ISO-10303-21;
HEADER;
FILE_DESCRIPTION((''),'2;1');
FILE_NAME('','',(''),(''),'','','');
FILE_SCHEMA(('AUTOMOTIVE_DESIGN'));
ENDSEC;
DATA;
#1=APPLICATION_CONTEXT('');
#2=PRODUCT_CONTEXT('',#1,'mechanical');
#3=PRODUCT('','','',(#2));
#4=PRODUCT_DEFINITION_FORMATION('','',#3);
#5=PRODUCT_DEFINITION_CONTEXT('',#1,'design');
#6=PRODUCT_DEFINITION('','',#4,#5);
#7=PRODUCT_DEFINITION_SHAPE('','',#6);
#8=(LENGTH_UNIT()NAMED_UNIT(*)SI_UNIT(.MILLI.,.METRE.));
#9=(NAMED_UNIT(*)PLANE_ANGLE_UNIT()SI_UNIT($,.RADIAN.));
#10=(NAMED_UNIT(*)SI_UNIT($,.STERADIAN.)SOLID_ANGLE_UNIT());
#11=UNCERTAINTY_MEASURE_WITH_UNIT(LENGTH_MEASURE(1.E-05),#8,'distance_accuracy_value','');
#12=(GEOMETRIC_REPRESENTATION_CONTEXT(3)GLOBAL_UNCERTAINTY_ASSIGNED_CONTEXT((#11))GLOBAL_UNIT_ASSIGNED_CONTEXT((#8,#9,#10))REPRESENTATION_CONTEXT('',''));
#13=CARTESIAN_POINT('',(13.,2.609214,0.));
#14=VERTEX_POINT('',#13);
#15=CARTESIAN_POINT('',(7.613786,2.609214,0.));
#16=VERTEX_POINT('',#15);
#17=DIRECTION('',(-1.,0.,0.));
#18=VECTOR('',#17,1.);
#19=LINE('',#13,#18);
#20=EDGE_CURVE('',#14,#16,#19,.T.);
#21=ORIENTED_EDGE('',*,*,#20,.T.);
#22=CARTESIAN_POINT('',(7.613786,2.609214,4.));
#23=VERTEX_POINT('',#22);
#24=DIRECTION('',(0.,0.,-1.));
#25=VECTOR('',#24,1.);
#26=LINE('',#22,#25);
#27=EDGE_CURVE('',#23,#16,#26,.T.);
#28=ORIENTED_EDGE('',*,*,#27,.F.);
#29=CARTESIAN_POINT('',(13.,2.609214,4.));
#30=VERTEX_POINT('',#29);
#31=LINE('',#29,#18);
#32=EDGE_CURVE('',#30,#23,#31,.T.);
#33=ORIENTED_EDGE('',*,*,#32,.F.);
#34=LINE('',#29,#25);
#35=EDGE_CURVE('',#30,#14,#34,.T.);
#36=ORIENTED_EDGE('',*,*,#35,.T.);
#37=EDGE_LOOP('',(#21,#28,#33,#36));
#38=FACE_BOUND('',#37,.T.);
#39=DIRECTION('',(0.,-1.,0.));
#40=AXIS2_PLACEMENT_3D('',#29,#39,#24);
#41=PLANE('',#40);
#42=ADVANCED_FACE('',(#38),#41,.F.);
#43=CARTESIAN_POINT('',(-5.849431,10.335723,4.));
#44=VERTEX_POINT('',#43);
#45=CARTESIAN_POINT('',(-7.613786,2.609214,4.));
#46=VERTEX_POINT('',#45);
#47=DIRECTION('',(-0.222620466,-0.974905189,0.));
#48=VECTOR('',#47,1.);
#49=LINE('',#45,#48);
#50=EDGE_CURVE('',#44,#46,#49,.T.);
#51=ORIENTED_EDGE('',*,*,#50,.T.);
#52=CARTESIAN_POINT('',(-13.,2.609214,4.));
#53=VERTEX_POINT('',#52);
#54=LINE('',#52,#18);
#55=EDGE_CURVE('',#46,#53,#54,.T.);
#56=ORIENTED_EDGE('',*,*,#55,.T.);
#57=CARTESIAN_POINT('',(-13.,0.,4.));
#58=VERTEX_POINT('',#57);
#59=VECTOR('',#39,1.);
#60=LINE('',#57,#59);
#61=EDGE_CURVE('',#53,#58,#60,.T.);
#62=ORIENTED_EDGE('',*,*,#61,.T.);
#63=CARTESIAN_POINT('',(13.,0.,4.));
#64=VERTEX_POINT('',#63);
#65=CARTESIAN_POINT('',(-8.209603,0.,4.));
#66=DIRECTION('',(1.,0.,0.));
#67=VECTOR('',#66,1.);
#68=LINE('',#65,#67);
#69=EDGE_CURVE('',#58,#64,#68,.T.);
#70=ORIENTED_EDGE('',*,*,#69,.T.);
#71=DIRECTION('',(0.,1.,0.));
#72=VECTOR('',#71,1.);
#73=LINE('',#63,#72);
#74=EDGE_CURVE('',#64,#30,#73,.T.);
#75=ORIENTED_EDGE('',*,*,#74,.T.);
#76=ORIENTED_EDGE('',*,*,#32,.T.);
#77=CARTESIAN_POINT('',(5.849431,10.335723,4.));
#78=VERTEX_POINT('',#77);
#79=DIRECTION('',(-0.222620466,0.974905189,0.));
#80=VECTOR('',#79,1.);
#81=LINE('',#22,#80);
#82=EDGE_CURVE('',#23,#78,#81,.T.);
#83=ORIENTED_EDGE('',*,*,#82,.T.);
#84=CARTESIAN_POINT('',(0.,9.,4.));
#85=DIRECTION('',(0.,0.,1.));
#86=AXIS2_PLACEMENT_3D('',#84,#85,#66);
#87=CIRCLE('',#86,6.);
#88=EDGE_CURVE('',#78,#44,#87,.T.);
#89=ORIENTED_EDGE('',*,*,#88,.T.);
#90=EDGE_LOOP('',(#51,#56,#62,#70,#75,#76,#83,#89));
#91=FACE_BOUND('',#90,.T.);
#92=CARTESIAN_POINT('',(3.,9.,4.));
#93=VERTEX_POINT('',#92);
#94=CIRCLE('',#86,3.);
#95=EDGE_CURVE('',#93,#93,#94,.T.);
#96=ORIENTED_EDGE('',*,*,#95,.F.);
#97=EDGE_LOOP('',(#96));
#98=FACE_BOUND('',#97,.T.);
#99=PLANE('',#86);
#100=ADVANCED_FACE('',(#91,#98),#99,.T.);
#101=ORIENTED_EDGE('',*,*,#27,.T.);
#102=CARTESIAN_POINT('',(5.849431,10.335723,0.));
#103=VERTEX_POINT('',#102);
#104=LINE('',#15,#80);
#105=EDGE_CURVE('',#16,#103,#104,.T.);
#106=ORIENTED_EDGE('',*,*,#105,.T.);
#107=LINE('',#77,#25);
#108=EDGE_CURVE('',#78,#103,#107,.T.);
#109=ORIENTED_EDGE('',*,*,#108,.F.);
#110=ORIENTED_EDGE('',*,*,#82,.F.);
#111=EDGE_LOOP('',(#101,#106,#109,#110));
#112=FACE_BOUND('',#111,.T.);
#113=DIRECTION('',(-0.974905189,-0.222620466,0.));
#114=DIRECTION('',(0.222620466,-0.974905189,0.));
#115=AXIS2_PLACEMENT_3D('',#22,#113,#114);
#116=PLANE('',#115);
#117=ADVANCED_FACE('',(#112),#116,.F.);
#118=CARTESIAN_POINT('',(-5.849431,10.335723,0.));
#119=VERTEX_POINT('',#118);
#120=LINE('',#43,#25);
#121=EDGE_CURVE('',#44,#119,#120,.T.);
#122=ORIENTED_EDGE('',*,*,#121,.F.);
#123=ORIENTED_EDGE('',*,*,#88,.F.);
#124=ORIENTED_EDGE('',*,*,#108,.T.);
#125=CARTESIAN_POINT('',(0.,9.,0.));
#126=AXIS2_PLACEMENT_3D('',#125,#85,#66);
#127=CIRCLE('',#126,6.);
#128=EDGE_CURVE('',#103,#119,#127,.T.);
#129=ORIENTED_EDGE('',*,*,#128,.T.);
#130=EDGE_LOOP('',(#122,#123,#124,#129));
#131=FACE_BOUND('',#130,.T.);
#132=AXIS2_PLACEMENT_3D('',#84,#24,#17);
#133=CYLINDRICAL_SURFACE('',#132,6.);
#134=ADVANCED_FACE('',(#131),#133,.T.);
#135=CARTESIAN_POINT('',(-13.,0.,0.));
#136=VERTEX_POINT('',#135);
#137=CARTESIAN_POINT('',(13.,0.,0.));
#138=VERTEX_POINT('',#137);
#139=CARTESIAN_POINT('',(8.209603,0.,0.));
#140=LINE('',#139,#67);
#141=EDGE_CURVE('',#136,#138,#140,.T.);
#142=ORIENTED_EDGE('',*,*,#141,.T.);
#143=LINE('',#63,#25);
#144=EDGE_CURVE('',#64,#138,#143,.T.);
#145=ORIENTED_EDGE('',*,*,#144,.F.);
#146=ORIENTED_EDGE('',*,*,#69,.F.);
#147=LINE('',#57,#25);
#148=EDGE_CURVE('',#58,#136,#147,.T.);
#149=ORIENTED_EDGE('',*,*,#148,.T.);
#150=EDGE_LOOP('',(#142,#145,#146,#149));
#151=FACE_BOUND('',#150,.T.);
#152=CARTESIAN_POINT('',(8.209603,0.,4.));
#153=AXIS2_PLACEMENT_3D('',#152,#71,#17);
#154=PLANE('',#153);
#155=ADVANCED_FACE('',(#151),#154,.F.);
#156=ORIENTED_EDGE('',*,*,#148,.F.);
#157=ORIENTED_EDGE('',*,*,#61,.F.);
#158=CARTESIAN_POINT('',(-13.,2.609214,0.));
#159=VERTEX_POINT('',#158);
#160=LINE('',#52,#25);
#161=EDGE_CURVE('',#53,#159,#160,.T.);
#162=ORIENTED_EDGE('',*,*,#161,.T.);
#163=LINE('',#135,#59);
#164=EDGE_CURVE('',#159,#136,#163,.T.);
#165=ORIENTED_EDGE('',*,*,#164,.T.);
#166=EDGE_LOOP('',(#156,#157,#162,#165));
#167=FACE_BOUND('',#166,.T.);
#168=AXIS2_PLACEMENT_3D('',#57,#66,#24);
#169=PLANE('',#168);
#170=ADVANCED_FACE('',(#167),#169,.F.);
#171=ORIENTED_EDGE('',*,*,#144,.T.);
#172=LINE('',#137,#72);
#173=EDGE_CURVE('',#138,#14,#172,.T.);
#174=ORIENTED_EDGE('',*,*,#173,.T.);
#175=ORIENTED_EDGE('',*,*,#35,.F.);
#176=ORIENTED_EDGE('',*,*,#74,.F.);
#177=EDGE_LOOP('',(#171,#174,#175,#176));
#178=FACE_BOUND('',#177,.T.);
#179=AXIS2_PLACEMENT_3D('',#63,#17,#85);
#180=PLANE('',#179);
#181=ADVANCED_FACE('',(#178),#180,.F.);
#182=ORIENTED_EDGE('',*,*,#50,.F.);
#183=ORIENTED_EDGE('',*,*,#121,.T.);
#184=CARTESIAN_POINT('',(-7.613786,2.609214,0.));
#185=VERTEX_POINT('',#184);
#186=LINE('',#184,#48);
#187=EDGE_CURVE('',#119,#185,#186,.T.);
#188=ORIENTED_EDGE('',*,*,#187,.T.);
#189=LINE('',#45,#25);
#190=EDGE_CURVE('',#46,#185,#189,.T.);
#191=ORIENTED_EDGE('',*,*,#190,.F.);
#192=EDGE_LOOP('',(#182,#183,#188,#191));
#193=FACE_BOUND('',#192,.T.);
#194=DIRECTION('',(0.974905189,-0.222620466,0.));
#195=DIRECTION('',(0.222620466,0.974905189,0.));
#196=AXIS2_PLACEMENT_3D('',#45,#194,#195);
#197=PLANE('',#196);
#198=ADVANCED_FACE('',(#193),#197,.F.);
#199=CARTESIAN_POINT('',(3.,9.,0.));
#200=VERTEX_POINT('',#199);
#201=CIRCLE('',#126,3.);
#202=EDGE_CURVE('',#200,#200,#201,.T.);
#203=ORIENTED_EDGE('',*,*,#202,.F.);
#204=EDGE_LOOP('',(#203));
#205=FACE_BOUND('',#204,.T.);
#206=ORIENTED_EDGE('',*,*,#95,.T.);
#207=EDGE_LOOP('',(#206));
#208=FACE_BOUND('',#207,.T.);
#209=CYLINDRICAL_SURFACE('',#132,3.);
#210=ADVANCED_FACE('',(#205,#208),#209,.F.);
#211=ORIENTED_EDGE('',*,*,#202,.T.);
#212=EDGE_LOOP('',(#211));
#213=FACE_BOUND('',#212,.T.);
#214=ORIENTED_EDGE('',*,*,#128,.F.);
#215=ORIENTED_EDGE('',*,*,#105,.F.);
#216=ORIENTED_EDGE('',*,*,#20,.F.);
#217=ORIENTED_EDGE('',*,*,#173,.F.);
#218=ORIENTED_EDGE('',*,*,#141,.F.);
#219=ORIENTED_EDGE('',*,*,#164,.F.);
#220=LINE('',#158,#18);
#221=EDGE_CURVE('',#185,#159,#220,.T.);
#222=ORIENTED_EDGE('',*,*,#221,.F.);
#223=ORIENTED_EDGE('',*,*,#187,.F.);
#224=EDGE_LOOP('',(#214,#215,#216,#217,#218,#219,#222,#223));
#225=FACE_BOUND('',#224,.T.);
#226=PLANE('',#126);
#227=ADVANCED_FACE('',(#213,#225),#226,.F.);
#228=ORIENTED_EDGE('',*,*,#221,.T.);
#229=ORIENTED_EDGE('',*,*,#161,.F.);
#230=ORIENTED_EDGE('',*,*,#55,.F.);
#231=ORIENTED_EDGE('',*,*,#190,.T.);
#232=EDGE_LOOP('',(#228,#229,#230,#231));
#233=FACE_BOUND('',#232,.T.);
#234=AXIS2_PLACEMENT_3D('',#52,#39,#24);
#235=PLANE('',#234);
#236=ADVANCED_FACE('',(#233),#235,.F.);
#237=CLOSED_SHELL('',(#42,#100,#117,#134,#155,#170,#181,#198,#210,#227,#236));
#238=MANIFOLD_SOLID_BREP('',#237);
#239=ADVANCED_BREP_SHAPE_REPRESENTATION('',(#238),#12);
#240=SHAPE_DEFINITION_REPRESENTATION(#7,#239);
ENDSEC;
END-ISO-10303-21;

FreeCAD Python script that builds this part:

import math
import FreeCAD as App
import Part
import Sketcher

doc = App.newDocument("Part")
body = doc.addObject("PartDesign::Body", "Body")

# Sketch on XY plane
sketch1 = body.newObject("Sketcher::SketchObject", "Sketch")
sketch1.AttachmentSupport = (doc.getObject("XY_Plane"), [""])
sketch1.MapMode = "FlatFace"
sketch1.addGeometry([
    Part.LineSegment(App.Vector(13, 0, 0), App.Vector(13, 2.6, 0)),  # 0
    Part.LineSegment(App.Vector(13, 2.6, 0), App.Vector(7.6, 2.6, 0)),  # 1
    Part.LineSegment(App.Vector(7.6, 2.6, 0), App.Vector(5.8, 10.3, 0)),  # 2
    Part.ArcOfCircle(Part.Circle(App.Vector(0, 9, 0), App.Vector(0, 0, 1), 6), math.radians(13), math.radians(167)),  # 3
    Part.LineSegment(App.Vector(-5.8, 10.3, 0), App.Vector(-7.6, 2.6, 0)),  # 4
    Part.LineSegment(App.Vector(-7.6, 2.6, 0), App.Vector(-13, 2.6, 0)),  # 5
    Part.LineSegment(App.Vector(-13, 2.6, 0), App.Vector(-13, 0, 0)),  # 6
    Part.LineSegment(App.Vector(-13, 0, 0), App.Vector(13, 0, 0)),  # 7
    Part.Circle(App.Vector(0, 9, 0), App.Vector(0, 0, 1), 3),  # 8
], False)
sketch1.addConstraint([
    Sketcher.Constraint("Coincident", 0, 2, 1, 1),
    Sketcher.Constraint("Coincident", 1, 2, 2, 1),
    Sketcher.Constraint("Tangent", 2, 2, 3, 1),
    Sketcher.Constraint("Tangent", 3, 2, 4, 1),
    Sketcher.Constraint("Coincident", 4, 2, 5, 1),
    Sketcher.Constraint("Coincident", 5, 2, 6, 1),
    Sketcher.Constraint("Coincident", 6, 2, 7, 1),
    Sketcher.Constraint("Coincident", 7, 2, 0, 1),
    Sketcher.Constraint("Vertical", 0),
    Sketcher.Constraint("Horizontal", 1),
    Sketcher.Constraint("Horizontal", 5),
    Sketcher.Constraint("Vertical", 6),
    Sketcher.Constraint("Horizontal", 7),
    Sketcher.Constraint("Coincident", 8, 3, 3, 3),
    Sketcher.Constraint("Symmetric", 6, 2, 7, 2, -1, 1),
    Sketcher.Constraint("Symmetric", 2, 2, 3, 2, -2),
    Sketcher.Constraint("Horizontal", 1, 2, 4, 2),
    Sketcher.Constraint("Diameter", 8, 6.0),
    Sketcher.Constraint("Radius", 3, 6.0),
    Sketcher.Constraint("DistanceX", 7, 1, 7, 2, 26.0),
    Sketcher.Constraint("DistanceY", -1, 1, 3, 3, 9.0),
    Sketcher.Constraint("DistanceX", 1, 2, 1, 1, 5.386214),
    Sketcher.Constraint("DistanceY", 0, 1, 0, 2, 2.609214),
])
pad1 = body.newObject("PartDesign::Pad", "Pad")
pad1.Profile = sketch1
pad1.Length = 4

doc.recompute()
